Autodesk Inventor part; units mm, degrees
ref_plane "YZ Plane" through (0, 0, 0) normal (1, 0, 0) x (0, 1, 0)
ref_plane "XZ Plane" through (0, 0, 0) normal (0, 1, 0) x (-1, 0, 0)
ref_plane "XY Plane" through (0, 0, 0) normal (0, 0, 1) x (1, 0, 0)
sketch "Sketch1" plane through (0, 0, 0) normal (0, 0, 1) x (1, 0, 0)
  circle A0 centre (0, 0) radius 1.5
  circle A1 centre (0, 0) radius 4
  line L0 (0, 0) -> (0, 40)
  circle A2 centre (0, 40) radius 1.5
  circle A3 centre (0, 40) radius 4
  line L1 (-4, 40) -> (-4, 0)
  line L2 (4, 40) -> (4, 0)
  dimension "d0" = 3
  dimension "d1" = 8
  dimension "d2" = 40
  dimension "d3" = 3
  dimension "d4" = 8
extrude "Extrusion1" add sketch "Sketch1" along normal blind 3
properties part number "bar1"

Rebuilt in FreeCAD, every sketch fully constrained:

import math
import FreeCAD as App
import Part
import Sketcher

V = App.Vector

doc = App.newDocument("Part")
params = doc.addObject("Spreadsheet::Sheet", "Params")
for row, (alias, value) in enumerate([
    ("sketch1_diameter", "3 mm"),
    ("sketch1_radius", "4 mm"),
    ("sketch1_height", "40 mm"),
    ("pad1_length", "3 mm"),
], start=1):
    params.set(f"A{row}", alias)
    params.set(f"B{row}", "=" + value)
    params.setAlias(f"B{row}", alias)

body = doc.addObject("PartDesign::Body", "Body")

sketch1 = doc.addObject("Sketcher::SketchObject", "Sketch")
body.addObject(sketch1)
sketch1.AttachmentSupport = (doc.XY_Plane, [""])
sketch1.MapMode = "FlatFace"
sketch1.addGeometry(Part.ArcOfCircle(Part.Circle(V(0, 0, 0), V(0, 0, 1), 4), math.radians(180), math.radians(360)), False)
sketch1.addGeometry(Part.LineSegment(V(4, 0, 0), V(4, 40, 0)), False)
sketch1.addGeometry(Part.ArcOfCircle(Part.Circle(V(0, 40, 0), V(0, 0, 1), 4), math.radians(0), math.radians(180)), False)
sketch1.addGeometry(Part.LineSegment(V(-4, 40, 0), V(-4, 0, 0)), False)
sketch1.addGeometry(Part.Circle(V(0, 0, 0), V(0, 0, 1), 1.5), False)
sketch1.addGeometry(Part.Circle(V(0, 40, 0), V(0, 0, 1), 1.5), False)
sketch1.addConstraint(Sketcher.Constraint("Tangent", 0, 2, 1, 1))
sketch1.addConstraint(Sketcher.Constraint("Tangent", 1, 2, 2, 1))
sketch1.addConstraint(Sketcher.Constraint("Tangent", 2, 2, 3, 1))
sketch1.addConstraint(Sketcher.Constraint("Tangent", 3, 2, 0, 1))
sketch1.addConstraint(Sketcher.Constraint("Vertical", 1))
sketch1.addConstraint(Sketcher.Constraint("Vertical", 3))
sketch1.addConstraint(Sketcher.Constraint("Coincident", 0, 3, -1, 1))
sketch1.addConstraint(Sketcher.Constraint("Coincident", 4, 3, -1, 1))
sketch1.addConstraint(Sketcher.Constraint("Coincident", 5, 3, 2, 3))
sketch1.addConstraint(Sketcher.Constraint("Equal", 4, 5))
sketch1.addConstraint(Sketcher.Constraint("Diameter", 4, 3.0))
sketch1.addConstraint(Sketcher.Constraint("Radius", 0, 4.0))
sketch1.addConstraint(Sketcher.Constraint("DistanceY", 1, 1, 1, 2, 40.0))
sketch1.setExpression("Constraints[10]", "Params.sketch1_diameter")
sketch1.setExpression("Constraints[11]", "Params.sketch1_radius")
sketch1.setExpression("Constraints[12]", "Params.sketch1_height")
pad1 = doc.addObject("PartDesign::Pad", "Pad")
body.addObject(pad1)
pad1.Profile = sketch1
pad1.setExpression("Length", "Params.pad1_length")

doc.recompute()
